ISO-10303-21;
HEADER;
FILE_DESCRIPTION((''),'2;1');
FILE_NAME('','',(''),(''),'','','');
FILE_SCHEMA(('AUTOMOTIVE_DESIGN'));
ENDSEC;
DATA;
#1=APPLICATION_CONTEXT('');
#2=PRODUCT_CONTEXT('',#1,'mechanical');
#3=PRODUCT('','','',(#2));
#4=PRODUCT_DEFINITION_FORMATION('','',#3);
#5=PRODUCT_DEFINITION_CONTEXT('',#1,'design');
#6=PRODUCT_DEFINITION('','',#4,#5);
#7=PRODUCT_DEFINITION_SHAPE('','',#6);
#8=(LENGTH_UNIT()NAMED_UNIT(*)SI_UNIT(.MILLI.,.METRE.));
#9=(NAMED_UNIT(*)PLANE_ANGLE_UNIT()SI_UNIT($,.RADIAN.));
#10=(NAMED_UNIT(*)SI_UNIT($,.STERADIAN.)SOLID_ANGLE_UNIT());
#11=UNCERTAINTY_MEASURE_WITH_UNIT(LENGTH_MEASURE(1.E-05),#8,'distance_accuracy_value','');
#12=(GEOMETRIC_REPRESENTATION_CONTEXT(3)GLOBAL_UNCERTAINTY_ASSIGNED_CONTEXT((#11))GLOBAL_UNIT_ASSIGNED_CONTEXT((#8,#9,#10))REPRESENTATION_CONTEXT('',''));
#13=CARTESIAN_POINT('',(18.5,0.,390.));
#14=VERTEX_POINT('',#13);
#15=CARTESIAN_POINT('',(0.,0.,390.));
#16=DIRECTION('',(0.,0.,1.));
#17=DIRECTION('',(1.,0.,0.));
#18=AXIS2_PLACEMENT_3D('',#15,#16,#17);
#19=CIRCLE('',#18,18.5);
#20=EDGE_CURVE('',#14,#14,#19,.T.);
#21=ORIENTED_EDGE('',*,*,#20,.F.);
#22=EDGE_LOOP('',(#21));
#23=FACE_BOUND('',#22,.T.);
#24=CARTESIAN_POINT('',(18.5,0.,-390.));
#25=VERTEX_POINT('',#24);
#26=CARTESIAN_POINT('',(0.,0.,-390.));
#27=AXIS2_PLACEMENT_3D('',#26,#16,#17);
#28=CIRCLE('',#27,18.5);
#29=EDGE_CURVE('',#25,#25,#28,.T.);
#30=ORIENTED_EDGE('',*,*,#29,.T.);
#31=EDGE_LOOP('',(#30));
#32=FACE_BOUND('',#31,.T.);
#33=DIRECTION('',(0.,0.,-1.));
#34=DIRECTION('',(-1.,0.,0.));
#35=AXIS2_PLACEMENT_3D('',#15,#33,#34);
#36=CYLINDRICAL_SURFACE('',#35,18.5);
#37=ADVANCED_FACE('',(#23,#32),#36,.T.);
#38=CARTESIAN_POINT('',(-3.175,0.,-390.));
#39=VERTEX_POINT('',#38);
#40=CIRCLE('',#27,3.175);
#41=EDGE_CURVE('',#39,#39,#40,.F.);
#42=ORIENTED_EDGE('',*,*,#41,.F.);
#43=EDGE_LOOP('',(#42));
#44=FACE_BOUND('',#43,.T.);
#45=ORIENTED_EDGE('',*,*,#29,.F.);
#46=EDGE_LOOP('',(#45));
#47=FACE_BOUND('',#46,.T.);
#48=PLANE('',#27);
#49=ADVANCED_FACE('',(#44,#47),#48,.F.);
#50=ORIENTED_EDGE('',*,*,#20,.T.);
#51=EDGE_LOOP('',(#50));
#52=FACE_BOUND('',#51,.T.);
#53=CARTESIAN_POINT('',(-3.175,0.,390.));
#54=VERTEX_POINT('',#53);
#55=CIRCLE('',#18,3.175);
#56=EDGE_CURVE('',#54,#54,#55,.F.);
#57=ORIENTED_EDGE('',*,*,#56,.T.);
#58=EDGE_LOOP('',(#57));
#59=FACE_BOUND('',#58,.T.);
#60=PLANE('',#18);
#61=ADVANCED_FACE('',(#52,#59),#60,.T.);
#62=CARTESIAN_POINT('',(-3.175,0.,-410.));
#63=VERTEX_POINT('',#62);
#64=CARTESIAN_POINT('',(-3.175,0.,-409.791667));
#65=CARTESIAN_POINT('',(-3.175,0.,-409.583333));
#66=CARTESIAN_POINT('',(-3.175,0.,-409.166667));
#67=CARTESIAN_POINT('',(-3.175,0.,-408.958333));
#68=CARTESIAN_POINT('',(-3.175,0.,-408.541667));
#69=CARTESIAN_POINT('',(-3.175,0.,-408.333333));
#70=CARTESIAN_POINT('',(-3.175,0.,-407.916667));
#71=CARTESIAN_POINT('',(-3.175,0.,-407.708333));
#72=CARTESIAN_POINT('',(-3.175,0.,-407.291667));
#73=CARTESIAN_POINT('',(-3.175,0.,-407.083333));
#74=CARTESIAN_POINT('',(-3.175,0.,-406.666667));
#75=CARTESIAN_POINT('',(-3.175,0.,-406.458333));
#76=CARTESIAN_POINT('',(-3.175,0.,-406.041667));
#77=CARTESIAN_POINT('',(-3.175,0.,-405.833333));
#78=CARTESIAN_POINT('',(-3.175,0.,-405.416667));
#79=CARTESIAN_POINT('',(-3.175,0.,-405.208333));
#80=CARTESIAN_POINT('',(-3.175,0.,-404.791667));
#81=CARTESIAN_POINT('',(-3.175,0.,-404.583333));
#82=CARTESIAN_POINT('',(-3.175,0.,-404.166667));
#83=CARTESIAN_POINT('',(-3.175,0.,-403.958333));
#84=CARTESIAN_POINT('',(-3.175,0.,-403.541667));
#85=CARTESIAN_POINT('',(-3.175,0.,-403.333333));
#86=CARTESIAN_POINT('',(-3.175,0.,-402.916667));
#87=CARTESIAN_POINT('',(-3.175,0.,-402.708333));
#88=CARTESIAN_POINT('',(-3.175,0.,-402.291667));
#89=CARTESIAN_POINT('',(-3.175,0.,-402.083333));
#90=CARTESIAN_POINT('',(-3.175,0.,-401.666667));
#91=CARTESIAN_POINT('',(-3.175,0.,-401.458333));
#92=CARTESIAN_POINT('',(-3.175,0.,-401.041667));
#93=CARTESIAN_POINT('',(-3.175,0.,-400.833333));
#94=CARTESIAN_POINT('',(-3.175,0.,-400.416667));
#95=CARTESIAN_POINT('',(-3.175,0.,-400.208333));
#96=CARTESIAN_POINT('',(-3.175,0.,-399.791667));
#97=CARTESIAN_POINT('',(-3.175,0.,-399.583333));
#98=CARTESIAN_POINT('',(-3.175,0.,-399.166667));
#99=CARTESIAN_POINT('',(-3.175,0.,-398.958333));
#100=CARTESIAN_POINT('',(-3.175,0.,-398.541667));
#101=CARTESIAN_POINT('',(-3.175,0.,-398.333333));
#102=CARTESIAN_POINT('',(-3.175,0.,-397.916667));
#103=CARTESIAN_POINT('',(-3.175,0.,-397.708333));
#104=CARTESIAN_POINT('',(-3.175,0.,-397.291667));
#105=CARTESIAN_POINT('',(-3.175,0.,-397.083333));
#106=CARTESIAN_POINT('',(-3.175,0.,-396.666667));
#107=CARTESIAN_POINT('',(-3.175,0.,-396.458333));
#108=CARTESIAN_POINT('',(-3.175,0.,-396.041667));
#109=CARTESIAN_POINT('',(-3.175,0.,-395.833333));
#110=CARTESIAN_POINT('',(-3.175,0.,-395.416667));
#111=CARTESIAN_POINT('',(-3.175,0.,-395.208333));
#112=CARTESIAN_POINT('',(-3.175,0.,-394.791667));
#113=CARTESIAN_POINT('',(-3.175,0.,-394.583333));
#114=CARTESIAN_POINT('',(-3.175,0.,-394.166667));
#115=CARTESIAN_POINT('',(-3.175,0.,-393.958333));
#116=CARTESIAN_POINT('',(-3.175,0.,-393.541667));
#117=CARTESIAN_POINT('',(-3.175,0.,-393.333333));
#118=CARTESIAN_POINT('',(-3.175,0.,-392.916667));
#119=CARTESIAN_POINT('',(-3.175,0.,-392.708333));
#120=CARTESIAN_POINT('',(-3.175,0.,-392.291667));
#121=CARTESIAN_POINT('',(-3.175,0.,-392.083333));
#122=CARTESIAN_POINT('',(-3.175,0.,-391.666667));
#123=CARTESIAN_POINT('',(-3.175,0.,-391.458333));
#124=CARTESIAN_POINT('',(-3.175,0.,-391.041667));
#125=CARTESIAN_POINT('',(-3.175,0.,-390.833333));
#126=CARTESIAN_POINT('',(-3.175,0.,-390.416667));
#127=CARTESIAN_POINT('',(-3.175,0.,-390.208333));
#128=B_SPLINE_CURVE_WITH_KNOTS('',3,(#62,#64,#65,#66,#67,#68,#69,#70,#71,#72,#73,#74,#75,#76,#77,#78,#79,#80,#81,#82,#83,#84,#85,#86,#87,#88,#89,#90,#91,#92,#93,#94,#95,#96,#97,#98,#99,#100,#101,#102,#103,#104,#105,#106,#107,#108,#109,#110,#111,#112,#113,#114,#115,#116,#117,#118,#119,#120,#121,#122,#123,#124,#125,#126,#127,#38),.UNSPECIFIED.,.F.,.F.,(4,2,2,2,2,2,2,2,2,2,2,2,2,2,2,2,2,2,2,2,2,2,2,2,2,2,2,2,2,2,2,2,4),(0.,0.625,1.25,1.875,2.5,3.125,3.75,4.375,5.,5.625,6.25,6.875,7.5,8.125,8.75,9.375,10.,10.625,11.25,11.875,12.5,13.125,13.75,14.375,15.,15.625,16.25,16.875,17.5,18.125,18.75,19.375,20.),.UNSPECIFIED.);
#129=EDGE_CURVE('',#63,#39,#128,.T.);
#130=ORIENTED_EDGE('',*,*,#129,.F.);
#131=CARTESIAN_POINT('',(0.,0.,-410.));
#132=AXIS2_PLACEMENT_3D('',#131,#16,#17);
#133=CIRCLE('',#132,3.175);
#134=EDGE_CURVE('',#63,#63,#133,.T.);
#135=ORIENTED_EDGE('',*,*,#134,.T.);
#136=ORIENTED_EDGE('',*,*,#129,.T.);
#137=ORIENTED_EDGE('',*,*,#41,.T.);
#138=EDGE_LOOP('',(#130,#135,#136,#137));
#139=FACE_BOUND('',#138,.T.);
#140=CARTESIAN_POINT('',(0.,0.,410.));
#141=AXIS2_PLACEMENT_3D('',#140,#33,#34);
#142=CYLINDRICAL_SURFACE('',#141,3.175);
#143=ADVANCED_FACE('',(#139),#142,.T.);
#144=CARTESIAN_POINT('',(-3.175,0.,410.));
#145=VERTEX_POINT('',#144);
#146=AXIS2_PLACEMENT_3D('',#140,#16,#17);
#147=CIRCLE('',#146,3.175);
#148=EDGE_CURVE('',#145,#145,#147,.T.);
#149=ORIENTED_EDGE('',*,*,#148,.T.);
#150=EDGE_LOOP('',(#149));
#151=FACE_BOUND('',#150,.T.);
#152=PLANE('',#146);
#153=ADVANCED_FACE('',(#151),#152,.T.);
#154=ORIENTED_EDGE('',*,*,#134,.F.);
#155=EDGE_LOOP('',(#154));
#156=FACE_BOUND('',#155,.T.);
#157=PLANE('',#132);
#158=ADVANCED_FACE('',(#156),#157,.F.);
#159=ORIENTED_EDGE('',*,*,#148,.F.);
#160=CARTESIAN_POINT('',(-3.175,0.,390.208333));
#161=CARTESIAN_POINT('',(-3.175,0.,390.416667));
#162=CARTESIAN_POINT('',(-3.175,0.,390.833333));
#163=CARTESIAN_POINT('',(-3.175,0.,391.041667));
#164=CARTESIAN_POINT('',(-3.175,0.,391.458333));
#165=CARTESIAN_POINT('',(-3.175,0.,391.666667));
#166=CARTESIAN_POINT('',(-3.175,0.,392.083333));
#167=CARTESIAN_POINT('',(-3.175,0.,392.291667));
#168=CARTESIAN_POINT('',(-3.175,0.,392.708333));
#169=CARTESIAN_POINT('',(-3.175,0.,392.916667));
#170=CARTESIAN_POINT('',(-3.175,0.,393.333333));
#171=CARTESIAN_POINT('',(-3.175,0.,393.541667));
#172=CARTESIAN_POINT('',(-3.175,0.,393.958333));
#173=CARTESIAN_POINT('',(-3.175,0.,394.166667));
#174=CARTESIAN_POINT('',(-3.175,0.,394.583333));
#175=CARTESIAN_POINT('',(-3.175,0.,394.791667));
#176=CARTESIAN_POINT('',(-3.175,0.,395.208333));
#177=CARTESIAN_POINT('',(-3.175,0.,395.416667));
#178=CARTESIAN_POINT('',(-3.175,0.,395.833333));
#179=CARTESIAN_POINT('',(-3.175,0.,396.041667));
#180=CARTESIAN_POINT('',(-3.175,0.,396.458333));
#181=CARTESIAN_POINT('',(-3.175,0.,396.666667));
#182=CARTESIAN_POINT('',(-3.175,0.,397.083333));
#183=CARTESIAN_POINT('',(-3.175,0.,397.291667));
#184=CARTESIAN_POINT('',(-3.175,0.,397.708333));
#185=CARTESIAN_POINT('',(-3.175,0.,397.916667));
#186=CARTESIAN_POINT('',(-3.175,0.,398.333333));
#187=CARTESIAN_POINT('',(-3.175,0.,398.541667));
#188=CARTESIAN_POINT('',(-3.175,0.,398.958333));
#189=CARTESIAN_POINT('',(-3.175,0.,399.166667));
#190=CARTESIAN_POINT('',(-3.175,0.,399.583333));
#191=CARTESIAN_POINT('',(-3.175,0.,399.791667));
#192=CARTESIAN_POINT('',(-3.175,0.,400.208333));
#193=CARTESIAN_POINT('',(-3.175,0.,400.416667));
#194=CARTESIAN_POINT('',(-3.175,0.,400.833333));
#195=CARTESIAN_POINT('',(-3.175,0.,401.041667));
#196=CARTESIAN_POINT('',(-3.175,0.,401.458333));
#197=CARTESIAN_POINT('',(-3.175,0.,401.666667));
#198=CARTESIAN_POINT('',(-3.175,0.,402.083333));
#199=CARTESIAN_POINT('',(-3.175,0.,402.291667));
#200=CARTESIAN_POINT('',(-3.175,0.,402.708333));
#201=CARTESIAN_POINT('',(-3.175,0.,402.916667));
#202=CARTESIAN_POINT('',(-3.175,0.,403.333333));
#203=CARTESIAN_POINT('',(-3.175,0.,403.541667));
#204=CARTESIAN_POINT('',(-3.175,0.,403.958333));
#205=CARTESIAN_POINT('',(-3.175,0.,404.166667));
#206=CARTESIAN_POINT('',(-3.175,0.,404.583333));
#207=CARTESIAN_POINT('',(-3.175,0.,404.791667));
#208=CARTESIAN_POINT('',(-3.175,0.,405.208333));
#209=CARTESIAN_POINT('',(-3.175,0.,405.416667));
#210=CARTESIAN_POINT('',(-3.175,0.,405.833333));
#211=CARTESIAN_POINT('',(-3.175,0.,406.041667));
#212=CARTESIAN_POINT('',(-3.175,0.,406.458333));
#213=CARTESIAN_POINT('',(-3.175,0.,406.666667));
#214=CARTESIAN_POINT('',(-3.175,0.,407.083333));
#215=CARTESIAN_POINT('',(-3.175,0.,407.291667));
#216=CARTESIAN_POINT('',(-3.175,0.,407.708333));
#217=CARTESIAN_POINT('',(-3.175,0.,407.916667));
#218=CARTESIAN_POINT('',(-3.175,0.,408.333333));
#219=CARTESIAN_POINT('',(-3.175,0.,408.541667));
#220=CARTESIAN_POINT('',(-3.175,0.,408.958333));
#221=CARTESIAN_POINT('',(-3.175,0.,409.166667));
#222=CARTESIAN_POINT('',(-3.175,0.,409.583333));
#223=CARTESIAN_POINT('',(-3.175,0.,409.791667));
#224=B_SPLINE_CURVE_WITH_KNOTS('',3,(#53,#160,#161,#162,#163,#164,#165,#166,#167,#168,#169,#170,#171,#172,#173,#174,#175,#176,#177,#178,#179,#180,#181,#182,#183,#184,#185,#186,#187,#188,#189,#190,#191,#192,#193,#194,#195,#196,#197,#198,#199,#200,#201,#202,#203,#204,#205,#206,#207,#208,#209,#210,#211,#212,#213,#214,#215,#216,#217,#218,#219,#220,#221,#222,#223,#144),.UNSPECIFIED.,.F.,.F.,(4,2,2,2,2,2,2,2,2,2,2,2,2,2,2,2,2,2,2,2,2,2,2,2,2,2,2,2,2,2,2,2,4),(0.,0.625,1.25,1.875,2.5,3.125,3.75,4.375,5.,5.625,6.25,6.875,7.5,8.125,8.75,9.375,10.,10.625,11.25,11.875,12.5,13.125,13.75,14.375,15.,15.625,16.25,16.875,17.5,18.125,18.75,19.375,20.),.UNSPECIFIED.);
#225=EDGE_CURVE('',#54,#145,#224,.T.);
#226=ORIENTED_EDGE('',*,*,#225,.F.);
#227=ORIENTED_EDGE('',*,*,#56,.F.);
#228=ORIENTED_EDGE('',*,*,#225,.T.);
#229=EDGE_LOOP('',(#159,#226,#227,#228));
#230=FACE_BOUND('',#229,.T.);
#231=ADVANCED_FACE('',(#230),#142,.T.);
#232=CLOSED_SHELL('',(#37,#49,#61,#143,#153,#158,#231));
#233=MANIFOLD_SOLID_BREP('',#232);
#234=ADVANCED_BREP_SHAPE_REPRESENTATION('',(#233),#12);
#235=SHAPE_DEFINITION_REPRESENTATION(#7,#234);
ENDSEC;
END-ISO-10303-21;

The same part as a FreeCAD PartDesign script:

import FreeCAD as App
import Part
import Sketcher
Q = App.Units.Quantity

doc = App.newDocument("Part")
body = doc.addObject("PartDesign::Body", "Body")

# Sketch on XY plane
sketch1 = body.newObject("Sketcher::SketchObject", "Sketch")
sketch1.AttachmentSupport = (doc.getObject("XY_Plane"), [""])
sketch1.MapMode = "FlatFace"
sketch1.addGeometry(Part.Circle(App.Vector(0, 0, 0), App.Vector(0, 0, 1), 18), False)
sketch1.addConstraint(Sketcher.Constraint("Coincident", 0, 3, -1, 1))
sketch1.addConstraint(Sketcher.Constraint("Diameter", 0, Q("37 mm")))
pad1 = body.newObject("PartDesign::Pad", "Pad")
pad1.Profile = sketch1
pad1.Length = 780
pad1.Midplane = True

# Sketch on XY plane
sketch2 = body.newObject("Sketcher::SketchObject", "Sketch001")
sketch2.AttachmentSupport = (doc.getObject("XY_Plane"), [""])
sketch2.MapMode = "FlatFace"
sketch2.addGeometry(Part.Circle(App.Vector(0, 0, 0), App.Vector(0, 0, 1), 3.2), False)
sketch2.addConstraint(Sketcher.Constraint("Coincident", 0, 3, -1, 1))
sketch2.addConstraint(Sketcher.Constraint("Diameter", 0, Q("6.35 mm")))
pad2 = body.newObject("PartDesign::Pad", "Pad001")
pad2.Profile = sketch2
pad2.Length = 820
pad2.Midplane = True

doc.recompute()
